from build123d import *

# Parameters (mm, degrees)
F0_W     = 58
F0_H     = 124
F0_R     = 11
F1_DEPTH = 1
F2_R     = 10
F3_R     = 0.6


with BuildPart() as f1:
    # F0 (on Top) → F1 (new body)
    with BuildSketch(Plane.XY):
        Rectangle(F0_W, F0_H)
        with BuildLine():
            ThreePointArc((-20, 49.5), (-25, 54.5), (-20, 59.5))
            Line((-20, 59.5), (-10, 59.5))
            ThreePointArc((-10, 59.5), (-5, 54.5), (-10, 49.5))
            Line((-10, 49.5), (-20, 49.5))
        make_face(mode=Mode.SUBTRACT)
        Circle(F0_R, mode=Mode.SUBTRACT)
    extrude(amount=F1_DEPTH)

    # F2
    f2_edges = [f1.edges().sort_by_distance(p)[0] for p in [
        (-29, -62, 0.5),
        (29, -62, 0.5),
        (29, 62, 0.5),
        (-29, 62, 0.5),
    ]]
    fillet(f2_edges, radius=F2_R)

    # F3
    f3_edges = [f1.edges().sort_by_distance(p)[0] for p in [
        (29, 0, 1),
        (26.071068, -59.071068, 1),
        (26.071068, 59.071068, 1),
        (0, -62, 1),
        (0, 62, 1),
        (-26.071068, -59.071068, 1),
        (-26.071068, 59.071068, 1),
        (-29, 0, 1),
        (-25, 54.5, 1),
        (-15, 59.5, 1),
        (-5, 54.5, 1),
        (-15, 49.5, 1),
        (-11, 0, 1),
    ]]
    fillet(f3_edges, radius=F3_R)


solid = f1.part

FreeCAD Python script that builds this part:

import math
import FreeCAD as App
import Part
import Sketcher
from FreeCAD import Vector


def edges_at(feature, points):
    """Names of the edges that pass closest to the given points."""
    edges = feature.Shape.Edges
    near = lambda p: min(range(len(edges)), key=lambda i: edges[i].distToShape(Part.Vertex(*p))[0])
    return sorted({f"Edge{near(p) + 1}" for p in points})


def add_polygon(sketch, points):
    """Adds a closed chain of lines whose ends are joined by coincident constraints."""
    first, n = sketch.GeometryCount, len(points)
    for a, b in zip(points, points[1:] + points[:1]):
        sketch.addGeometry(Part.LineSegment(App.Vector(*a, 0), App.Vector(*b, 0)), False)
    for i in range(n):
        sketch.addConstraint(Sketcher.Constraint("Coincident", first + i, 2, first + (i + 1) % n, 1))

doc = App.newDocument("Part")
params = doc.addObject("Spreadsheet::Sheet", "Params")
for row, (alias, value) in enumerate([
    ("sketch1_diameter", "22 mm"),
    ("sketch1_radius", "5 mm"),
    ("sketch1_width", "58 mm"),
    ("sketch1_width2", "10 mm"),
    ("sketch1_height", "124 mm"),
    ("pad1_length", "1 mm"),
    ("fillet_radius", "10 mm"),
    ("fillet2_radius", "0.6 mm"),
], start=1):
    params.set(f"A{row}", alias)
    params.set(f"B{row}", "=" + value)
    params.setAlias(f"B{row}", alias)

body = doc.addObject("PartDesign::Body", "Body")

# Sketch on XY plane
sketch1 = body.newObject("Sketcher::SketchObject", "Sketch")
sketch1.AttachmentSupport = (doc.getObject("XY_Plane"), [""])
sketch1.MapMode = "FlatFace"
add_polygon(sketch1, [(-29, 62), (-29, -62), (29, -62), (29, 62)])  # lines 0-3
sketch1.addGeometry(Part.Circle(Vector(0, 0, 0), Vector(0, 0, 1), 11), False)  # 4
sketch1.addGeometry(Part.LineSegment(Vector(-10, 50, 0), Vector(-20, 50, 0)), False)  # 5
sketch1.addGeometry(Part.ArcOfCircle(Part.Circle(Vector(-20, 54, 0), Vector(0, 0, 1), 5), math.radians(90), math.radians(270)), False)  # 6
sketch1.addGeometry(Part.LineSegment(Vector(-20, 60, 0), Vector(-10, 60, 0)), False)  # 7
sketch1.addGeometry(Part.ArcOfCircle(Part.Circle(Vector(-10, 54, 0), Vector(0, 0, 1), 5), math.radians(-90), math.radians(90)), False)  # 8
sketch1.addConstraint([
    Sketcher.Constraint("Tangent", 5, 2, 6, 2),
    Sketcher.Constraint("Tangent", 6, 1, 7, 1),
    Sketcher.Constraint("Tangent", 7, 2, 8, 2),
    Sketcher.Constraint("Tangent", 8, 1, 5, 1),
    Sketcher.Constraint("Vertical", 0),
    Sketcher.Constraint("Horizontal", 1),
    Sketcher.Constraint("Vertical", 2),
    Sketcher.Constraint("Horizontal", 3),
    Sketcher.Constraint("Horizontal", 5),
    Sketcher.Constraint("Horizontal", 7),
    Sketcher.Constraint("Coincident", 4, 3, -1, 1),
    Sketcher.Constraint("Symmetric", 0, 2, 2, 2, -1, 1),
    Sketcher.Constraint("Diameter", 4, 22.0),
    Sketcher.Constraint("Radius", 6, 5.0),
    Sketcher.Constraint("DistanceX", 1, 1, 1, 2, 58.0),
    Sketcher.Constraint("DistanceX", 5, 2, 5, 1, 10.0),
    Sketcher.Constraint("DistanceY", 0, 2, 0, 1, 124.0),
    Sketcher.Constraint("DistanceX", 6, 3, -1, 1, 20.0),
    Sketcher.Constraint("DistanceY", -1, 1, 6, 3, 54.5),
])
sketch1.setExpression("Constraints[16]", "Params.sketch1_diameter")
sketch1.setExpression("Constraints[17]", "Params.sketch1_radius")
sketch1.setExpression("Constraints[18]", "Params.sketch1_width")
sketch1.setExpression("Constraints[19]", "Params.sketch1_width2")
sketch1.setExpression("Constraints[20]", "Params.sketch1_height")
pad1 = body.newObject("PartDesign::Pad", "Pad")
pad1.Profile = sketch1
pad1.setExpression("Length", "Params.pad1_length")
doc.recompute()

fillet = body.newObject("PartDesign::Fillet", "Fillet")
fillet.Base = (pad1, edges_at(pad1, [
    (-29, -62, 0.5),
    (29, -62, 0.5),
    (29, 62, 0.5),
    (-29, 62, 0.5),
]))
fillet.setExpression("Radius", "Params.fillet_radius")
doc.recompute()

fillet2 = body.newObject("PartDesign::Fillet", "Fillet001")
fillet2.Base = (fillet, edges_at(fillet, [
    (29, 0, 1),
    (26.071, -59.071, 1),
    (26.071, 59.071, 1),
    (0, -62, 1),
    (0, 62, 1),
    (-26.071, -59.071, 1),
    (-26.071, 59.071, 1),
    (-29, 0, 1),
    (-25, 54.5, 1),
    (-15, 59.5, 1),
    (-5, 54.5, 1),
    (-15, 49.5, 1),
    (-11, 0, 1),
]))
fillet2.setExpression("Radius", "Params.fillet2_radius")

doc.recompute()
